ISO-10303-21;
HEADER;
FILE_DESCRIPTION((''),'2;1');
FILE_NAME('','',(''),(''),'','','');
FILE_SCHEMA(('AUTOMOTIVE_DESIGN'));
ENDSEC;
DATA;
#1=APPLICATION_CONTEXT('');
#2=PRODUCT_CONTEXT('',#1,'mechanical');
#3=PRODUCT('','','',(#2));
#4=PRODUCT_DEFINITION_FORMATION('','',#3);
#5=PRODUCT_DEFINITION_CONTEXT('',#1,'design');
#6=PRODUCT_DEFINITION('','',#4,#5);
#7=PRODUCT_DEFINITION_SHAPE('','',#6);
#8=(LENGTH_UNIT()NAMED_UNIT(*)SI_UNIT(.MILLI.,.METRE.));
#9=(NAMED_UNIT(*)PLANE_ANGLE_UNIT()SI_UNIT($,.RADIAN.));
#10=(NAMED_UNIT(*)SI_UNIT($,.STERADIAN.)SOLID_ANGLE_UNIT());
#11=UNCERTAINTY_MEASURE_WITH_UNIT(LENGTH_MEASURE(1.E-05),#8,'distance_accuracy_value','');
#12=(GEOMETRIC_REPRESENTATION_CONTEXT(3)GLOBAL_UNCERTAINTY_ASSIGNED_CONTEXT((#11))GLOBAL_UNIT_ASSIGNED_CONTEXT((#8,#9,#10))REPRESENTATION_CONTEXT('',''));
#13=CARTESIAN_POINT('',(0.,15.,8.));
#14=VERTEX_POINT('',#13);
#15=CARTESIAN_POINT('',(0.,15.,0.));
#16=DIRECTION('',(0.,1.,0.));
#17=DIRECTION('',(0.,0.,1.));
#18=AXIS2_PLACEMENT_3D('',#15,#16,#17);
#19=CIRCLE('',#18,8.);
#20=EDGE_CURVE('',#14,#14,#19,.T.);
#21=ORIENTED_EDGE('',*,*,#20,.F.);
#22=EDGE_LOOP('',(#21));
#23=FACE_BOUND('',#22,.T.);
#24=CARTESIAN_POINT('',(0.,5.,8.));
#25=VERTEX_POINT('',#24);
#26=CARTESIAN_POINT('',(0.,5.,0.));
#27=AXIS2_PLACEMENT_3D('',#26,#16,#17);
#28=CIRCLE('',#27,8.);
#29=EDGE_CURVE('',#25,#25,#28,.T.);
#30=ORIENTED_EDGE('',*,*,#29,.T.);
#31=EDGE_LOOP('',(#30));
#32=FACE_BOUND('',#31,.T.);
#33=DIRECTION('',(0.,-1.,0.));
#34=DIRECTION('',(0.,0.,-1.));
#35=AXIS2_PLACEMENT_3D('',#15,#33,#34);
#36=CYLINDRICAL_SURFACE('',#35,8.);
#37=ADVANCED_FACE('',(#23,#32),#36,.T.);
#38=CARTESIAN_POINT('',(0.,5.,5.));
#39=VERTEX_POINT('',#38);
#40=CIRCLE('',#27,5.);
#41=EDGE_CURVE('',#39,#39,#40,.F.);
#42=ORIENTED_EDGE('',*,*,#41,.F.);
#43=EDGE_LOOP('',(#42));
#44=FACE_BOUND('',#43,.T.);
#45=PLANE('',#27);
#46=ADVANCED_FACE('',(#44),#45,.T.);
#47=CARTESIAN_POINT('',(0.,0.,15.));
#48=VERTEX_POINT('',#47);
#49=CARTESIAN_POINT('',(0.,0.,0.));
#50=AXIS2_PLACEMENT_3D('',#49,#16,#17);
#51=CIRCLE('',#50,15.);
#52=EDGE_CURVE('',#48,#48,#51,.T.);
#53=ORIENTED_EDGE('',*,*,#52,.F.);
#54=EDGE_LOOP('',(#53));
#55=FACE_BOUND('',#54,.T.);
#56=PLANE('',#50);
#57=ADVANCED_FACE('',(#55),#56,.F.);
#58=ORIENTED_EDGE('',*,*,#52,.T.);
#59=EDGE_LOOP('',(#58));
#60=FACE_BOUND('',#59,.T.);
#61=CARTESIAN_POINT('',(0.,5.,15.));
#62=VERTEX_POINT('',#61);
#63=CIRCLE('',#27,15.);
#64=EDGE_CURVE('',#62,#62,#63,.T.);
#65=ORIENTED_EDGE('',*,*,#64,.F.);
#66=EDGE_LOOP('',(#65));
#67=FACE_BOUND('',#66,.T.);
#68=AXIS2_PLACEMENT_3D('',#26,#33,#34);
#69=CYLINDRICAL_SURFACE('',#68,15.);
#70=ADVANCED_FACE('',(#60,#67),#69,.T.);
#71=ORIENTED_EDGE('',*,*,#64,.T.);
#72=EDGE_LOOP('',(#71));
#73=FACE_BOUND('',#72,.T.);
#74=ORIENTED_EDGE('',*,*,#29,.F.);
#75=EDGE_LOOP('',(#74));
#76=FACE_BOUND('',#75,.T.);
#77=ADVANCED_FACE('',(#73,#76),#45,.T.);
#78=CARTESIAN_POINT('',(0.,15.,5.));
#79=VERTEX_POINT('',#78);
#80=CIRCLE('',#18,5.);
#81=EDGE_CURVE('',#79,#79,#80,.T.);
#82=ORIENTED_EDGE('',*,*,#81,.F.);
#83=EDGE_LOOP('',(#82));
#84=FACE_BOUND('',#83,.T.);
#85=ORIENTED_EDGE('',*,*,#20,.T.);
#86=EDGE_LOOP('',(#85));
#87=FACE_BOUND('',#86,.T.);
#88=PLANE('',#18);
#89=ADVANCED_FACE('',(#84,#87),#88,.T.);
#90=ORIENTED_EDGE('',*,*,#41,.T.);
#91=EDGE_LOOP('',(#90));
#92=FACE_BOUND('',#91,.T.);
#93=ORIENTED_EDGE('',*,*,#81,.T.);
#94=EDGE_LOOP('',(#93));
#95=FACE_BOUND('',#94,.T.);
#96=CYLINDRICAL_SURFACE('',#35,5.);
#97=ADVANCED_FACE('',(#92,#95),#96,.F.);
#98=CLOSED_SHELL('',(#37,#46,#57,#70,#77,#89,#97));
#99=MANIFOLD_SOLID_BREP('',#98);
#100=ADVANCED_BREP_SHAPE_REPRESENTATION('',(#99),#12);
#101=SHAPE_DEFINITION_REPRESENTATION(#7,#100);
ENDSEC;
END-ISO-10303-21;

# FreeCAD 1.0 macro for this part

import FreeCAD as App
import Part
import Sketcher

V = App.Vector
Q = App.Units.Quantity

doc = App.newDocument("Part")
body = doc.addObject("PartDesign::Body", "Body")

sketch1 = body.newObject("Sketcher::SketchObject", "Sketch")
sketch1.AttachmentSupport = (doc.getObject("XZ_Plane"), [""])
sketch1.MapMode = "FlatFace"
sketch1.addGeometry(Part.Circle(V(0, 0, 0), V(0, 0, 1), 15), False)
sketch1.addConstraint(Sketcher.Constraint("Coincident", 0, 3, -1, 1))
sketch1.addConstraint(Sketcher.Constraint("Diameter", 0, Q("30 mm")))
pad1 = body.newObject("PartDesign::Pad", "Pad")
pad1.Profile = sketch1
pad1.Length = 5
pad1.Reversed = True

sketch2 = body.newObject("Sketcher::SketchObject", "Sketch001")
sketch2.AttachmentSupport = (doc.getObject("XZ_Plane"), [""])
sketch2.MapMode = "FlatFace"
sketch2.AttachmentOffset = App.Placement(V(0, 0, -5), App.Rotation())
sketch2.addGeometry(Part.Circle(V(0, 0, 0), V(0, 0, 1), 8), False)
sketch2.addGeometry(Part.Circle(V(0, 0, 0), V(0, 0, 1), 5), False)
sketch2.addConstraint(Sketcher.Constraint("Coincident", 0, 3, -1, 1))
sketch2.addConstraint(Sketcher.Constraint("Coincident", 1, 3, -1, 1))
sketch2.addConstraint(Sketcher.Constraint("Diameter", 0, Q("16 mm")))
sketch2.addConstraint(Sketcher.Constraint("Diameter", 1, Q("10 mm")))
pad2 = body.newObject("PartDesign::Pad", "Pad001")
pad2.Profile = sketch2
pad2.Length = 10
pad2.Reversed = True

doc.recompute()
